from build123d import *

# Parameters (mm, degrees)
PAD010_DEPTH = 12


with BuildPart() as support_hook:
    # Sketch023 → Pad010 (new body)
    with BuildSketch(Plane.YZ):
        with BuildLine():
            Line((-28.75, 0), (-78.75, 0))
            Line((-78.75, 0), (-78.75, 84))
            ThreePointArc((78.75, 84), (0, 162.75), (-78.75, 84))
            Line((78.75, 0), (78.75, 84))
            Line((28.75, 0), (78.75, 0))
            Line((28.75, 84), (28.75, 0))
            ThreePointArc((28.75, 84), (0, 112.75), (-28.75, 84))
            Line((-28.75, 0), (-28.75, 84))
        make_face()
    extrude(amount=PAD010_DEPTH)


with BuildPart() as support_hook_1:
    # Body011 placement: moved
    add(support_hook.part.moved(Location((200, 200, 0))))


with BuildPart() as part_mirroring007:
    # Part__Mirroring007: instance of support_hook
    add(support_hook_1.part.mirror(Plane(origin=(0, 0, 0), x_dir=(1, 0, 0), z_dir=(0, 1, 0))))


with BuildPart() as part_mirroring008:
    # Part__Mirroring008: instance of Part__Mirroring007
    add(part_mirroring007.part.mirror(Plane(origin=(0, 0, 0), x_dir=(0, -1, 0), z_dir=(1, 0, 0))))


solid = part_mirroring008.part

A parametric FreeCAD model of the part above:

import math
import FreeCAD as App
import Part
import Sketcher

V = App.Vector

doc = App.newDocument("Part")
body = doc.addObject("PartDesign::Body", "Body")

# Sketch on YZ plane
sketch1 = body.newObject("Sketcher::SketchObject", "Sketch")
sketch1.AttachmentSupport = (doc.getObject("YZ_Plane"), [""])
sketch1.MapMode = "FlatFace"
sketch1.addGeometry([
    Part.LineSegment(V(-78.75, 0, 0), V(-28.75, 0, 0)),  # 0
    Part.LineSegment(V(-28.75, 0, 0), V(-28.75, 84, 0)),  # 1
    Part.ArcOfCircle(Part.Circle(V(0, 84, 0), V(0, 0, 1), 28.75), math.radians(0), math.radians(180)),  # 2
    Part.LineSegment(V(28.75, 84, 0), V(28.75, 0, 0)),  # 3
    Part.LineSegment(V(28.75, 0, 0), V(78.75, 0, 0)),  # 4
    Part.LineSegment(V(78.75, 0, 0), V(78.75, 84, 0)),  # 5
    Part.ArcOfCircle(Part.Circle(V(0, 84, 0), V(0, 0, 1), 78.75), math.radians(0), math.radians(180)),  # 6
    Part.LineSegment(V(-78.75, 84, 0), V(-78.75, 0, 0)),  # 7
], False)
sketch1.addConstraint([
    Sketcher.Constraint("Coincident", 0, 2, 1, 1),
    Sketcher.Constraint("Tangent", 1, 2, 2, 2),
    Sketcher.Constraint("Tangent", 2, 1, 3, 1),
    Sketcher.Constraint("Coincident", 3, 2, 4, 1),
    Sketcher.Constraint("Coincident", 4, 2, 5, 1),
    Sketcher.Constraint("Tangent", 5, 2, 6, 1),
    Sketcher.Constraint("Tangent", 6, 2, 7, 1),
    Sketcher.Constraint("Coincident", 7, 2, 0, 1),
    Sketcher.Constraint("Horizontal", 0),
    Sketcher.Constraint("Vertical", 1),
    Sketcher.Constraint("Vertical", 3),
    Sketcher.Constraint("Horizontal", 4),
    Sketcher.Constraint("Vertical", 5),
    Sketcher.Constraint("Vertical", 7),
    Sketcher.Constraint("Coincident", 6, 3, 2, 3),
    Sketcher.Constraint("Symmetric", 0, 2, 3, 2, -1, 1),
    Sketcher.Constraint("PointOnObject", 0, 2, -1),
    Sketcher.Constraint("DistanceX", 0, 1, 0, 2, 50.0),
    Sketcher.Constraint("DistanceY", 1, 1, 1, 2, 84.0),
    Sketcher.Constraint("Radius", 2, 28.75),
])
pad1 = body.newObject("PartDesign::Pad", "Pad")
pad1.Profile = sketch1
pad1.Length = 12
body2 = doc.addObject("PartDesign::Body", "Body001")
doc.recompute()

body.Placement = App.Placement(V(200, 200, 0), App.Rotation(V(0, 0, 1), 0))
boolean = body2.newObject("PartDesign::Boolean", "Boolean")
boolean.Type = "Fuse"
boolean.addObjects([body])
body3 = doc.addObject("PartDesign::Body", "Body002")
doc.recompute()

mirroring = doc.addObject("Part::Mirroring", "Mirroring")
mirroring.Source = body2
mirroring.Base = V(0, 0, 0)
mirroring.Normal = V(0, 1, 0)
body3.BaseFeature = mirroring
doc.recompute()
body4 = doc.addObject("PartDesign::Body", "Body003")
doc.recompute()

mirroring2 = doc.addObject("Part::Mirroring", "Mirroring001")
mirroring2.Source = body3
mirroring2.Base = V(0, 0, 0)
mirroring2.Normal = V(1, 0, 0)
body4.BaseFeature = mirroring2
doc.recompute()
body2.Visibility = False
body3.Visibility = False
mirroring.Visibility = False
mirroring2.Visibility = False

doc.recompute()
